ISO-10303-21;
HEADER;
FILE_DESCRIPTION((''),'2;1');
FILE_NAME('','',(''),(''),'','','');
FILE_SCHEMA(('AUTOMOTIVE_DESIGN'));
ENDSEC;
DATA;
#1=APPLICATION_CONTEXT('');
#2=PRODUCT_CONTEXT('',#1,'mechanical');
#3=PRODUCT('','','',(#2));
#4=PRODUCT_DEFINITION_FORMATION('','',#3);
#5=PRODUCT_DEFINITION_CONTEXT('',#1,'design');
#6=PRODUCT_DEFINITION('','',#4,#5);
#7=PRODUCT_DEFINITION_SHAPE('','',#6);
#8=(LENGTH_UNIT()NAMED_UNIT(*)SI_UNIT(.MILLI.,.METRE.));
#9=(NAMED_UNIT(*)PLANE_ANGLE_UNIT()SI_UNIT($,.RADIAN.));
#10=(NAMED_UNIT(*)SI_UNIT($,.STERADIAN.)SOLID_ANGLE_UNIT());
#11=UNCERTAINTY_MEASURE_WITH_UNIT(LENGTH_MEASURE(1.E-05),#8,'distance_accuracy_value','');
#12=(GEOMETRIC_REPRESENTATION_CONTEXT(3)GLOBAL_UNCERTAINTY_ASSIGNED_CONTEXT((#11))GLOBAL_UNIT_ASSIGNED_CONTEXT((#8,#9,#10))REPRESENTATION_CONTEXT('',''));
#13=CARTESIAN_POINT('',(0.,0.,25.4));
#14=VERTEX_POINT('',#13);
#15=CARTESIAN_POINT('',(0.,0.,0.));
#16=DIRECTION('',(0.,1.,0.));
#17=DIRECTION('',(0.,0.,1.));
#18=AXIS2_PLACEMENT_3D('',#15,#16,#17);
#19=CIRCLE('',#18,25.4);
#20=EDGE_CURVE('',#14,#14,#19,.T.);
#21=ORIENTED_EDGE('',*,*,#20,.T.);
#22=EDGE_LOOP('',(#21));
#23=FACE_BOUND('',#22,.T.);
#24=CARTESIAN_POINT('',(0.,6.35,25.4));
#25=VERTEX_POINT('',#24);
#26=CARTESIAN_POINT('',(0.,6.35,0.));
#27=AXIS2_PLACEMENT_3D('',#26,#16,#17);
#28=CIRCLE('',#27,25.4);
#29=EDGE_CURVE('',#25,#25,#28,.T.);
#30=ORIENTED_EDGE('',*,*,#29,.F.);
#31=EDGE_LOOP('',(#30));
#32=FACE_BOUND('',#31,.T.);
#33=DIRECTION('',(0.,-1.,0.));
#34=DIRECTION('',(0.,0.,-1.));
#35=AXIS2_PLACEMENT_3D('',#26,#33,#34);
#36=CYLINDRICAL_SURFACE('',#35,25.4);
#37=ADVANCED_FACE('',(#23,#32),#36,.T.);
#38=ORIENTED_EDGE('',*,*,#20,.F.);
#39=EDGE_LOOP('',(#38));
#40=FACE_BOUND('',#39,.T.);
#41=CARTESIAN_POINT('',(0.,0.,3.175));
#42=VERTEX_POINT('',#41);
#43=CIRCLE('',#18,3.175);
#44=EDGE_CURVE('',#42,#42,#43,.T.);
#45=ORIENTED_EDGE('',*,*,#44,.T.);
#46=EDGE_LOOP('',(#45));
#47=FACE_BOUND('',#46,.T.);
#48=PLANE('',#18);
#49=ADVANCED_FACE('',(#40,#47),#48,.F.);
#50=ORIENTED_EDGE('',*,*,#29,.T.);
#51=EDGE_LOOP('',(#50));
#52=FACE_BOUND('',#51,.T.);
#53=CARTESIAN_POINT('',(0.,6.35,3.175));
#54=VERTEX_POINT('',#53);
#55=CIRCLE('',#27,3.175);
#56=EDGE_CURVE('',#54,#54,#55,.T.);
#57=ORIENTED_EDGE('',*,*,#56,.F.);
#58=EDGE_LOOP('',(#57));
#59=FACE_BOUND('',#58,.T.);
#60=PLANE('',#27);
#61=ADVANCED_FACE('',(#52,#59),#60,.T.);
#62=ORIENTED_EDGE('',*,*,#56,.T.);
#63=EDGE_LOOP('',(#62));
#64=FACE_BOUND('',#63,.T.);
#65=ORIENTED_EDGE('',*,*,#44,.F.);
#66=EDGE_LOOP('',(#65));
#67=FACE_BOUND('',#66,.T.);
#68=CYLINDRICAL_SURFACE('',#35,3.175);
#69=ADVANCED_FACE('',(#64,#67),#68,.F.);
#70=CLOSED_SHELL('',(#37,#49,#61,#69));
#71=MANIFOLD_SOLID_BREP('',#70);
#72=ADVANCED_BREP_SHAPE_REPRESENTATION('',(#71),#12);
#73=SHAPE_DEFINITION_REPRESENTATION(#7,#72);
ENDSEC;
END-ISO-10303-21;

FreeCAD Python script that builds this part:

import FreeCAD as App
import Part
import Sketcher

V = App.Vector
Q = App.Units.Quantity

doc = App.newDocument("Part")
params = doc.addObject("Spreadsheet::Sheet", "Params")
for row, (alias, value) in enumerate([
    ("sketch1_diameter", "2 in"),
    ("sketch1_diameter2", "0.25 in"),
    ("pad1_length", "0.25 in"),
], start=1):
    params.set(f"A{row}", alias)
    params.set(f"B{row}", "=" + value)
    params.setAlias(f"B{row}", alias)

body = doc.addObject("PartDesign::Body", "Body")

# Sketch on XZ plane
sketch1 = body.newObject("Sketcher::SketchObject", "Sketch")
sketch1.AttachmentSupport = (doc.getObject("XZ_Plane"), [""])
sketch1.MapMode = "FlatFace"
sketch1.addGeometry([
    Part.Circle(V(0, 0, 0), V(0, 0, 1), 25.4),
    Part.Circle(V(0, 0, 0), V(0, 0, 1), 3.2),
], False)
sketch1.addConstraint([
    Sketcher.Constraint("Coincident", 0, 3, -1, 1),
    Sketcher.Constraint("Coincident", 1, 3, -1, 1),
    Sketcher.Constraint("Diameter", 0, Q("2 in")),
    Sketcher.Constraint("Diameter", 1, Q("0.25 in")),
])
sketch1.setExpression("Constraints[2]", "Params.sketch1_diameter")
sketch1.setExpression("Constraints[3]", "Params.sketch1_diameter2")
pad1 = body.newObject("PartDesign::Pad", "Pad")
pad1.Profile = sketch1
pad1.setExpression("Length", "Params.pad1_length")
pad1.Reversed = True

doc.recompute()
